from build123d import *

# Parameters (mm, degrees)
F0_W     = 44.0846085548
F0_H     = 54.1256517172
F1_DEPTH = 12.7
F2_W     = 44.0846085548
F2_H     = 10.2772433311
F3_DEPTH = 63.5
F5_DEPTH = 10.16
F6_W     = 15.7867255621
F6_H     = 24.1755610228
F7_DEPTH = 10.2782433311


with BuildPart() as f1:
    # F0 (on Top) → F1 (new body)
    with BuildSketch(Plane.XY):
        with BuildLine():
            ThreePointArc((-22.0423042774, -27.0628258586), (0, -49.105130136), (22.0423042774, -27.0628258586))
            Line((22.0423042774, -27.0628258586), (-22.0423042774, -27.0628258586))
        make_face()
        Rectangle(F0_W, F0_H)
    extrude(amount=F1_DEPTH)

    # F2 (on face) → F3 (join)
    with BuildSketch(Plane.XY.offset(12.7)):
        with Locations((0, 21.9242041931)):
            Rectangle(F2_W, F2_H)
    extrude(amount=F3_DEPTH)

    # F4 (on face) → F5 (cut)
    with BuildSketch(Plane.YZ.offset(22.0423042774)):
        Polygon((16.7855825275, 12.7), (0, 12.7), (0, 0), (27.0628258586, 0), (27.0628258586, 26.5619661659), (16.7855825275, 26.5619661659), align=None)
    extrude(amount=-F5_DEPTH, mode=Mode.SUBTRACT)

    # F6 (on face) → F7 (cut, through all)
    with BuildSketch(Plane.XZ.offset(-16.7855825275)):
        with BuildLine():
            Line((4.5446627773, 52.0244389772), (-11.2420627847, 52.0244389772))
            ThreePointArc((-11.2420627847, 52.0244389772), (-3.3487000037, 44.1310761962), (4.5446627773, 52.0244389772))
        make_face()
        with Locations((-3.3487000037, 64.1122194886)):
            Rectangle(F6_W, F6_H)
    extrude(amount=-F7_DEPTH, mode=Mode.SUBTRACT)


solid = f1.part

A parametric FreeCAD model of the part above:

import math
import FreeCAD as App
import Part
import Sketcher
Q = App.Units.Quantity


def add_polygon(sketch, points):
    """Adds a closed chain of lines whose ends are joined by coincident constraints."""
    first, n = sketch.GeometryCount, len(points)
    for a, b in zip(points, points[1:] + points[:1]):
        sketch.addGeometry(Part.LineSegment(App.Vector(*a, 0), App.Vector(*b, 0)), False)
    for i in range(n):
        sketch.addConstraint(Sketcher.Constraint("Coincident", first + i, 2, first + (i + 1) % n, 1))

doc = App.newDocument("Part")
params = doc.addObject("Spreadsheet::Sheet", "Params")
for row, (alias, value) in enumerate([
    ("pad1_length", "0.5 in"),
    ("pad2_length", "2.5 in"),
    ("sketch3_height", "0.5 in"),
    ("pocket1_length", "0.4 in"),
], start=1):
    params.set(f"A{row}", alias)
    params.set(f"B{row}", "=" + value)
    params.setAlias(f"B{row}", alias)

body = doc.addObject("PartDesign::Body", "Body")

# Sketch on XY plane
sketch1 = body.newObject("Sketcher::SketchObject", "Sketch")
sketch1.AttachmentSupport = (doc.getObject("XY_Plane"), [""])
sketch1.MapMode = "FlatFace"
sketch1.addGeometry(Part.ArcOfCircle(Part.Circle(App.Vector(0, -27, 0), App.Vector(0, 0, 1), 22), math.radians(180), math.radians(360)), False)
sketch1.addGeometry(Part.LineSegment(App.Vector(22, -27, 0), App.Vector(22, 27, 0)), False)
sketch1.addGeometry(Part.LineSegment(App.Vector(22, 27, 0), App.Vector(-22, 27, 0)), False)
sketch1.addGeometry(Part.LineSegment(App.Vector(-22, 27, 0), App.Vector(-22, -27, 0)), False)
sketch1.addConstraint(Sketcher.Constraint("Tangent", 0, 2, 1, 1))
sketch1.addConstraint(Sketcher.Constraint("Coincident", 1, 2, 2, 1))
sketch1.addConstraint(Sketcher.Constraint("Coincident", 2, 2, 3, 1))
sketch1.addConstraint(Sketcher.Constraint("Tangent", 3, 2, 0, 1))
sketch1.addConstraint(Sketcher.Constraint("Vertical", 1))
sketch1.addConstraint(Sketcher.Constraint("Horizontal", 2))
sketch1.addConstraint(Sketcher.Constraint("Vertical", 3))
sketch1.addConstraint(Sketcher.Constraint("Symmetric", 0, 2, 2, 2, -1, 1))
sketch1.addConstraint(Sketcher.Constraint("Radius", 0, Q("22.042304 mm")))
sketch1.addConstraint(Sketcher.Constraint("DistanceY", 1, 1, 1, 2, Q("54.125652 mm")))
pad1 = body.newObject("PartDesign::Pad", "Pad")
pad1.Profile = sketch1
pad1.setExpression("Length", "Params.pad1_length")

# Sketch on XY plane
sketch2 = body.newObject("Sketcher::SketchObject", "Sketch001")
sketch2.AttachmentSupport = (doc.getObject("XY_Plane"), [""])
sketch2.MapMode = "FlatFace"
sketch2.AttachmentOffset = App.Placement(App.Vector(0, 0, 0.5 * 25.4), App.Rotation())
add_polygon(sketch2, [(-22, 27), (-22, 17), (22, 17), (22, 27)])  # lines 0-3
sketch2.addConstraint(Sketcher.Constraint("Vertical", 0))
sketch2.addConstraint(Sketcher.Constraint("Horizontal", 1))
sketch2.addConstraint(Sketcher.Constraint("Vertical", 2))
sketch2.addConstraint(Sketcher.Constraint("Horizontal", 3))
sketch2.addConstraint(Sketcher.Constraint("DistanceX", 1, 1, 1, 2, Q("44.084609 mm")))
sketch2.addConstraint(Sketcher.Constraint("DistanceY", 0, 2, 0, 1, Q("10.277243 mm")))
sketch2.addConstraint(Sketcher.Constraint("DistanceX", 0, 2, -1, 1, Q("22.042304 mm")))
sketch2.addConstraint(Sketcher.Constraint("DistanceY", -1, 1, 0, 2, Q("16.785583 mm")))
pad2 = body.newObject("PartDesign::Pad", "Pad001")
pad2.Profile = sketch2
pad2.setExpression("Length", "Params.pad2_length")

# Sketch on YZ plane
sketch3 = body.newObject("Sketcher::SketchObject", "Sketch002")
sketch3.AttachmentSupport = (doc.getObject("YZ_Plane"), [""])
sketch3.MapMode = "FlatFace"
sketch3.AttachmentOffset = App.Placement(App.Vector(0, 0, 22.042304), App.Rotation())
add_polygon(sketch3, [(17, 13), (0, 13), (0, 0), (27, 0), (27, 27), (17, 27)])  # lines 0-5
sketch3.addConstraint(Sketcher.Constraint("Horizontal", 0))
sketch3.addConstraint(Sketcher.Constraint("Vertical", 1))
sketch3.addConstraint(Sketcher.Constraint("Horizontal", 2))
sketch3.addConstraint(Sketcher.Constraint("Vertical", 3))
sketch3.addConstraint(Sketcher.Constraint("Horizontal", 4))
sketch3.addConstraint(Sketcher.Constraint("Vertical", 5))
sketch3.addConstraint(Sketcher.Constraint("Coincident", 1, 2, -1, 1))
sketch3.addConstraint(Sketcher.Constraint("DistanceY", 1, 2, 1, 1, Q("0.5 in")))
sketch3.addConstraint(Sketcher.Constraint("DistanceX", 0, 2, 0, 1, Q("16.785583 mm")))
sketch3.addConstraint(Sketcher.Constraint("DistanceX", 2, 1, 2, 2, Q("27.062826 mm")))
sketch3.addConstraint(Sketcher.Constraint("DistanceY", 3, 1, 3, 2, Q("26.561966 mm")))
sketch3.setExpression("Constraints[13]", "Params.sketch3_height")
pocket1 = body.newObject("PartDesign::Pocket", "Pocket")
pocket1.Profile = sketch3
pocket1.setExpression("Length", "Params.pocket1_length")

# Sketch on XZ plane
sketch4 = body.newObject("Sketcher::SketchObject", "Sketch003")
sketch4.AttachmentSupport = (doc.getObject("XZ_Plane"), [""])
sketch4.MapMode = "FlatFace"
sketch4.AttachmentOffset = App.Placement(App.Vector(0, 0, -16.785583), App.Rotation())
sketch4.addGeometry(Part.ArcOfCircle(Part.Circle(App.Vector(-3, 52, 0), App.Vector(0, 0, 1), 8), math.radians(180), math.radians(360)), False)
sketch4.addGeometry(Part.LineSegment(App.Vector(5, 52, 0), App.Vector(5, 76, 0)), False)
sketch4.addGeometry(Part.LineSegment(App.Vector(5, 76, 0), App.Vector(-11, 76, 0)), False)
sketch4.addGeometry(Part.LineSegment(App.Vector(-11, 76, 0), App.Vector(-11, 52, 0)), False)
sketch4.addConstraint(Sketcher.Constraint("Tangent", 0, 2, 1, 1))
sketch4.addConstraint(Sketcher.Constraint("Coincident", 1, 2, 2, 1))
sketch4.addConstraint(Sketcher.Constraint("Coincident", 2, 2, 3, 1))
sketch4.addConstraint(Sketcher.Constraint("Tangent", 3, 2, 0, 1))
sketch4.addConstraint(Sketcher.Constraint("Vertical", 1))
sketch4.addConstraint(Sketcher.Constraint("Horizontal", 2))
sketch4.addConstraint(Sketcher.Constraint("Vertical", 3))
sketch4.addConstraint(Sketcher.Constraint("DistanceY", -1, 1, 1, 2, Q("3 in")))
sketch4.addConstraint(Sketcher.Constraint("Radius", 0, Q("7.893363 mm")))
sketch4.addConstraint(Sketcher.Constraint("DistanceY", 1, 1, 1, 2, Q("24.175561 mm")))
sketch4.addConstraint(Sketcher.Constraint("DistanceX", 0, 3, -1, 1, Q("3.3487 mm")))
pocket2 = body.newObject("PartDesign::Pocket", "Pocket001")
pocket2.Profile = sketch4
pocket2.Type = "ThroughAll"

doc.recompute()
